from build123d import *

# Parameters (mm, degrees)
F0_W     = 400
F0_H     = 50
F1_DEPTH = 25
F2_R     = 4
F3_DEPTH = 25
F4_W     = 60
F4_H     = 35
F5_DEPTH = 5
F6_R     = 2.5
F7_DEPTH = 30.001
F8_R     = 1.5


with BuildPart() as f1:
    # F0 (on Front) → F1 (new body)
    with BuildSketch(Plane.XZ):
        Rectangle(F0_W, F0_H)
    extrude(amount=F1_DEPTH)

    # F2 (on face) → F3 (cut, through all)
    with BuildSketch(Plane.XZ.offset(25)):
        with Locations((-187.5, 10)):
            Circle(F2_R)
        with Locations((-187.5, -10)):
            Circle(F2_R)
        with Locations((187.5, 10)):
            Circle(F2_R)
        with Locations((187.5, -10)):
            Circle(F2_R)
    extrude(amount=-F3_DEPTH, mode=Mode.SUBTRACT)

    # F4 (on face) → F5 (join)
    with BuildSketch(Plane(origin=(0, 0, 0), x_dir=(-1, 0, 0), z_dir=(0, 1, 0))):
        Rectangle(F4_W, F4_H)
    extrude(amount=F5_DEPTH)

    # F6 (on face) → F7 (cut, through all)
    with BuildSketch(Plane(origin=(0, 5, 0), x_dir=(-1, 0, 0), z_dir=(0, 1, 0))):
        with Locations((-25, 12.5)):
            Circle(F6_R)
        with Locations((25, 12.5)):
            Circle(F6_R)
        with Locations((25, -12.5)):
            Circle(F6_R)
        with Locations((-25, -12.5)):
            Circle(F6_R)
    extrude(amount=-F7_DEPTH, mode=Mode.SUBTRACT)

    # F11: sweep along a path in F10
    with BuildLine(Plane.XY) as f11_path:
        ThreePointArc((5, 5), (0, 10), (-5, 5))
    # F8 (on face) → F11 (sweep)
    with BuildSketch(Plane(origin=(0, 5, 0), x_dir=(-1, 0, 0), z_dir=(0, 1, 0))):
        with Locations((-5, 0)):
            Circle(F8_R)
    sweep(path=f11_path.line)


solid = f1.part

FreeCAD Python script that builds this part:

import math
import FreeCAD as App
import Part
import Sketcher
Q = App.Units.Quantity

doc = App.newDocument("Part")
body = doc.addObject("PartDesign::Body", "Body")

sketch1 = body.newObject("Sketcher::SketchObject", "Sketch")
sketch1.AttachmentSupport = (doc.getObject("XZ_Plane"), [""])
sketch1.MapMode = "FlatFace"
sketch1.addGeometry([
    Part.LineSegment(App.Vector(-200, 25, 0), App.Vector(-200, -25, 0)),
    Part.LineSegment(App.Vector(-200, -25, 0), App.Vector(200, -25, 0)),
    Part.LineSegment(App.Vector(200, -25, 0), App.Vector(200, 25, 0)),
    Part.LineSegment(App.Vector(200, 25, 0), App.Vector(-200, 25, 0)),
], False)
sketch1.addConstraint([
    Sketcher.Constraint("Coincident", 0, 2, 1, 1),
    Sketcher.Constraint("Coincident", 1, 2, 2, 1),
    Sketcher.Constraint("Coincident", 2, 2, 3, 1),
    Sketcher.Constraint("Coincident", 3, 2, 0, 1),
    Sketcher.Constraint("Vertical", 0),
    Sketcher.Constraint("Horizontal", 1),
    Sketcher.Constraint("Vertical", 2),
    Sketcher.Constraint("Horizontal", 3),
    Sketcher.Constraint("Symmetric", 0, 2, 2, 2, -1, 1),
    Sketcher.Constraint("DistanceX", 1, 1, 1, 2, Q("400 mm")),
    Sketcher.Constraint("DistanceY", 0, 2, 0, 1, Q("50 mm")),
])
pad1 = body.newObject("PartDesign::Pad", "Pad")
pad1.Profile = sketch1
pad1.Length = 25

sketch2 = body.newObject("Sketcher::SketchObject", "Sketch001")
sketch2.AttachmentSupport = (doc.getObject("XZ_Plane"), [""])
sketch2.MapMode = "FlatFace"
sketch2.AttachmentOffset = App.Placement(App.Vector(0, 0, 25), App.Rotation())
sketch2.addGeometry([
    Part.Circle(App.Vector(-187.5, 10, 0), App.Vector(0, 0, 1), 4),
    Part.Circle(App.Vector(-187.5, -10, 0), App.Vector(0, 0, 1), 4),
    Part.Circle(App.Vector(187.5, 10, 0), App.Vector(0, 0, 1), 4),
    Part.Circle(App.Vector(187.5, -10, 0), App.Vector(0, 0, 1), 4),
], False)
sketch2.addConstraint([
    Sketcher.Constraint("Equal", 0, 1),
    Sketcher.Constraint("Equal", 1, 2),
    Sketcher.Constraint("Equal", 2, 3),
    Sketcher.Constraint("Symmetric", 1, 3, 2, 3, -1, 1),
    Sketcher.Constraint("Symmetric", 0, 3, 3, 3, -1, 1),
    Sketcher.Constraint("Symmetric", 0, 3, 2, 3, -2),
    Sketcher.Constraint("Diameter", 0, Q("8 mm")),
    Sketcher.Constraint("DistanceY", -1, 1, 0, 3, Q("10 mm")),
    Sketcher.Constraint("DistanceX", 0, 3, 2, 3, Q("375 mm")),
])
pocket1 = body.newObject("PartDesign::Pocket", "Pocket")
pocket1.Profile = sketch2
pocket1.Type = "ThroughAll"

sketch3 = body.newObject("Sketcher::SketchObject", "Sketch002")
sketch3.AttachmentSupport = (doc.getObject("XZ_Plane"), [""])
sketch3.MapMode = "FlatFace"
sketch3.addGeometry([
    Part.LineSegment(App.Vector(30, 18, 0), App.Vector(30, -18, 0)),
    Part.LineSegment(App.Vector(30, -18, 0), App.Vector(-30, -18, 0)),
    Part.LineSegment(App.Vector(-30, -18, 0), App.Vector(-30, 18, 0)),
    Part.LineSegment(App.Vector(-30, 18, 0), App.Vector(30, 18, 0)),
], False)
sketch3.addConstraint([
    Sketcher.Constraint("Coincident", 0, 2, 1, 1),
    Sketcher.Constraint("Coincident", 1, 2, 2, 1),
    Sketcher.Constraint("Coincident", 2, 2, 3, 1),
    Sketcher.Constraint("Coincident", 3, 2, 0, 1),
    Sketcher.Constraint("Vertical", 0),
    Sketcher.Constraint("Horizontal", 1),
    Sketcher.Constraint("Vertical", 2),
    Sketcher.Constraint("Horizontal", 3),
    Sketcher.Constraint("Symmetric", 0, 2, 2, 2, -1, 1),
    Sketcher.Constraint("DistanceX", 1, 2, 1, 1, Q("60 mm")),
    Sketcher.Constraint("DistanceY", 0, 2, 0, 1, Q("35 mm")),
])
pad2 = body.newObject("PartDesign::Pad", "Pad001")
pad2.Profile = sketch3
pad2.Length = 5
pad2.Reversed = True

sketch4 = body.newObject("Sketcher::SketchObject", "Sketch003")
sketch4.AttachmentSupport = (doc.getObject("XZ_Plane"), [""])
sketch4.MapMode = "FlatFace"
sketch4.AttachmentOffset = App.Placement(App.Vector(0, 0, -5), App.Rotation())
sketch4.addGeometry([
    Part.Circle(App.Vector(25, 12.5, 0), App.Vector(0, 0, 1), 2.5),
    Part.Circle(App.Vector(-25, 12.5, 0), App.Vector(0, 0, 1), 2.5),
    Part.Circle(App.Vector(-25, -12.5, 0), App.Vector(0, 0, 1), 2.5),
    Part.Circle(App.Vector(25, -12.5, 0), App.Vector(0, 0, 1), 2.5),
], False)
sketch4.addConstraint([
    Sketcher.Constraint("Equal", 0, 1),
    Sketcher.Constraint("Equal", 1, 2),
    Sketcher.Constraint("Equal", 2, 3),
    Sketcher.Constraint("Symmetric", 0, 3, 2, 3, -1, 1),
    Sketcher.Constraint("Symmetric", 1, 3, 3, 3, -1, 1),
    Sketcher.Constraint("Symmetric", 0, 3, 1, 3, -2),
    Sketcher.Constraint("Diameter", 0, Q("5 mm")),
    Sketcher.Constraint("DistanceX", -1, 1, 0, 3, Q("25 mm")),
    Sketcher.Constraint("DistanceY", 2, 3, 1, 3, Q("25 mm")),
])
pocket2 = body.newObject("PartDesign::Pocket", "Pocket001")
pocket2.Profile = sketch4
pocket2.Type = "ThroughAll"
pocket2.Reversed = True

sketch5 = body.newObject("Sketcher::SketchObject", "Sketch004")
sketch5.AttachmentSupport = (doc.getObject("XZ_Plane"), [""])
sketch5.MapMode = "FlatFace"
sketch5.AttachmentOffset = App.Placement(App.Vector(0, 0, -5), App.Rotation())
sketch5.addGeometry(Part.Circle(App.Vector(5, 0, 0), App.Vector(0, 0, 1), 1.5), False)
sketch5.addConstraint([
    Sketcher.Constraint("PointOnObject", 0, 3, -1),
    Sketcher.Constraint("Diameter", 0, Q("3 mm")),
    Sketcher.Constraint("DistanceX", -1, 1, 0, 3, Q("5 mm")),
])

sketch6 = body.newObject("Sketcher::SketchObject", "Sketch005")
sketch6.AttachmentSupport = (doc.getObject("XY_Plane"), [""])
sketch6.MapMode = "FlatFace"
sketch6.addGeometry(Part.ArcOfCircle(Part.Circle(App.Vector(0, 5, 0), App.Vector(0, 0, 1), 5), math.radians(0), math.radians(180)), False)
sketch6.addConstraint([
    Sketcher.Constraint("Symmetric", 0, 1, 0, 2, -2),
    Sketcher.Constraint("Radius", 0, Q("5 mm")),
    Sketcher.Constraint("DistanceY", -1, 1, 0, 3, Q("5 mm")),
    Sketcher.Constraint("DistanceY", -1, 1, 0, 1, Q("5 mm")),
])
doc.recompute()

additivepipe = body.newObject("PartDesign::AdditivePipe", "AdditivePipe")
additivepipe.Profile = sketch5
additivepipe.Spine = (sketch6, ["Edge1"])

doc.recompute()
